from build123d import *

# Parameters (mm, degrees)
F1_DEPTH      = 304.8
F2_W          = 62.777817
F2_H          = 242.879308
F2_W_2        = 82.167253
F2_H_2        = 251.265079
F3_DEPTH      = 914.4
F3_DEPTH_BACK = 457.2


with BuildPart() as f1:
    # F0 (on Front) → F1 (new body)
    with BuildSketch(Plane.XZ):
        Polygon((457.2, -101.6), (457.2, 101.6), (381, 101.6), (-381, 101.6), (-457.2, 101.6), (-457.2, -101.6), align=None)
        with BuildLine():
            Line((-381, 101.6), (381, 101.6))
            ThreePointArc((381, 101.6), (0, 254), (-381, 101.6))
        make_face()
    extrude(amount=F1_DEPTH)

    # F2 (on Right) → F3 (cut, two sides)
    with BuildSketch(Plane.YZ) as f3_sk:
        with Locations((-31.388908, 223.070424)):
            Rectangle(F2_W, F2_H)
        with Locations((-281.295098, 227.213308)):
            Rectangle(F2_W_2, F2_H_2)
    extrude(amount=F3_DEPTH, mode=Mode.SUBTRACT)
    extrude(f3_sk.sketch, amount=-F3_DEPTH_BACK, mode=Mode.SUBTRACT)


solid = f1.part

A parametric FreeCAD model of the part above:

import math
import FreeCAD as App
import Part
import Sketcher
Q = App.Units.Quantity


def add_polygon(sketch, points):
    """Adds a closed chain of lines whose ends are joined by coincident constraints."""
    first, n = sketch.GeometryCount, len(points)
    for a, b in zip(points, points[1:] + points[:1]):
        sketch.addGeometry(Part.LineSegment(App.Vector(*a, 0), App.Vector(*b, 0)), False)
    for i in range(n):
        sketch.addConstraint(Sketcher.Constraint("Coincident", first + i, 2, first + (i + 1) % n, 1))

doc = App.newDocument("Part")
params = doc.addObject("Spreadsheet::Sheet", "Params")
for row, (alias, value) in enumerate([
    ("sketch1_width", "3 in"),
    ("sketch1_width2", "36 in"),
    ("sketch1_height", "8 in"),
    ("sketch1_radius", "21.75 in"),
    ("pad1_length", "12 in"),
], start=1):
    params.set(f"A{row}", alias)
    params.set(f"B{row}", "=" + value)
    params.setAlias(f"B{row}", alias)

body = doc.addObject("PartDesign::Body", "Body")

# Sketch on XZ plane
sketch1 = body.newObject("Sketcher::SketchObject", "Sketch")
sketch1.AttachmentSupport = (doc.getObject("XZ_Plane"), [""])
sketch1.MapMode = "FlatFace"
sketch1.addGeometry(Part.LineSegment(App.Vector(457, -102, 0), App.Vector(457, 102, 0)), False)
sketch1.addGeometry(Part.LineSegment(App.Vector(457, 102, 0), App.Vector(381, 102, 0)), False)
sketch1.addGeometry(Part.ArcOfCircle(Part.Circle(App.Vector(0, -298, 0), App.Vector(0, 0, 1), 552), math.radians(46), math.radians(134)), False)
sketch1.addGeometry(Part.LineSegment(App.Vector(-381, 102, 0), App.Vector(-457, 102, 0)), False)
sketch1.addGeometry(Part.LineSegment(App.Vector(-457, 102, 0), App.Vector(-457, -102, 0)), False)
sketch1.addGeometry(Part.LineSegment(App.Vector(-457, -102, 0), App.Vector(457, -102, 0)), False)
sketch1.addConstraint(Sketcher.Constraint("Coincident", 0, 2, 1, 1))
sketch1.addConstraint(Sketcher.Constraint("Coincident", 1, 2, 2, 1))
sketch1.addConstraint(Sketcher.Constraint("Coincident", 2, 2, 3, 1))
sketch1.addConstraint(Sketcher.Constraint("Coincident", 3, 2, 4, 1))
sketch1.addConstraint(Sketcher.Constraint("Coincident", 4, 2, 5, 1))
sketch1.addConstraint(Sketcher.Constraint("Coincident", 5, 2, 0, 1))
sketch1.addConstraint(Sketcher.Constraint("Vertical", 0))
sketch1.addConstraint(Sketcher.Constraint("Horizontal", 1))
sketch1.addConstraint(Sketcher.Constraint("Horizontal", 3))
sketch1.addConstraint(Sketcher.Constraint("Vertical", 4))
sketch1.addConstraint(Sketcher.Constraint("Horizontal", 5))
sketch1.addConstraint(Sketcher.Constraint("Symmetric", 0, 2, 4, 2, -1, 1))
sketch1.addConstraint(Sketcher.Constraint("PointOnObject", 2, 3, -2))
sketch1.addConstraint(Sketcher.Constraint("Equal", 1, 3))
sketch1.addConstraint(Sketcher.Constraint("DistanceX", 1, 2, 1, 1, Q("3 in")))
sketch1.addConstraint(Sketcher.Constraint("DistanceX", 5, 1, 5, 2, Q("36 in")))
sketch1.addConstraint(Sketcher.Constraint("DistanceY", 0, 1, 0, 2, Q("8 in")))
sketch1.addConstraint(Sketcher.Constraint("Radius", 2, Q("21.75 in")))
sketch1.setExpression("Constraints[14]", "Params.sketch1_width")
sketch1.setExpression("Constraints[15]", "Params.sketch1_width2")
sketch1.setExpression("Constraints[16]", "Params.sketch1_height")
sketch1.setExpression("Constraints[17]", "Params.sketch1_radius")
pad1 = body.newObject("PartDesign::Pad", "Pad")
pad1.Profile = sketch1
pad1.setExpression("Length", "Params.pad1_length")

# Sketch on YZ plane
sketch2 = body.newObject("Sketcher::SketchObject", "Sketch001")
sketch2.AttachmentSupport = (doc.getObject("YZ_Plane"), [""])
sketch2.MapMode = "FlatFace"
add_polygon(sketch2, [(-63, 345), (-63, 102), (0, 102), (0, 345)])  # lines 0-3
add_polygon(sketch2, [(-322, 353), (-322, 102), (-240, 102), (-240, 353)])  # lines 4-7
sketch2.addConstraint(Sketcher.Constraint("Vertical", 0))
sketch2.addConstraint(Sketcher.Constraint("Horizontal", 1))
sketch2.addConstraint(Sketcher.Constraint("Vertical", 2))
sketch2.addConstraint(Sketcher.Constraint("Horizontal", 3))
sketch2.addConstraint(Sketcher.Constraint("Vertical", 4))
sketch2.addConstraint(Sketcher.Constraint("Horizontal", 5))
sketch2.addConstraint(Sketcher.Constraint("Vertical", 6))
sketch2.addConstraint(Sketcher.Constraint("Horizontal", 7))
sketch2.addConstraint(Sketcher.Constraint("PointOnObject", 1, 2, -2))
sketch2.addConstraint(Sketcher.Constraint("DistanceY", 0, 2, 0, 1, 242.879308))
sketch2.addConstraint(Sketcher.Constraint("DistanceY", 4, 2, 4, 1, 251.265079))
sketch2.addConstraint(Sketcher.Constraint("DistanceY", 4, 2, 0, 2, 0.050001))
sketch2.addConstraint(Sketcher.Constraint("DistanceX", 1, 1, 1, 2, 62.777817))
sketch2.addConstraint(Sketcher.Constraint("DistanceX", 5, 1, 5, 2, 82.167253))
sketch2.addConstraint(Sketcher.Constraint("DistanceY", -1, 1, 0, 2, 101.63077))
sketch2.addConstraint(Sketcher.Constraint("DistanceX", 5, 2, -1, 1, 240.211471))
pocket1 = body.newObject("PartDesign::Pocket", "Pocket")
pocket1.Profile = sketch2
pocket1.Type = "ThroughAll"
pocket1.Midplane = True

doc.recompute()
